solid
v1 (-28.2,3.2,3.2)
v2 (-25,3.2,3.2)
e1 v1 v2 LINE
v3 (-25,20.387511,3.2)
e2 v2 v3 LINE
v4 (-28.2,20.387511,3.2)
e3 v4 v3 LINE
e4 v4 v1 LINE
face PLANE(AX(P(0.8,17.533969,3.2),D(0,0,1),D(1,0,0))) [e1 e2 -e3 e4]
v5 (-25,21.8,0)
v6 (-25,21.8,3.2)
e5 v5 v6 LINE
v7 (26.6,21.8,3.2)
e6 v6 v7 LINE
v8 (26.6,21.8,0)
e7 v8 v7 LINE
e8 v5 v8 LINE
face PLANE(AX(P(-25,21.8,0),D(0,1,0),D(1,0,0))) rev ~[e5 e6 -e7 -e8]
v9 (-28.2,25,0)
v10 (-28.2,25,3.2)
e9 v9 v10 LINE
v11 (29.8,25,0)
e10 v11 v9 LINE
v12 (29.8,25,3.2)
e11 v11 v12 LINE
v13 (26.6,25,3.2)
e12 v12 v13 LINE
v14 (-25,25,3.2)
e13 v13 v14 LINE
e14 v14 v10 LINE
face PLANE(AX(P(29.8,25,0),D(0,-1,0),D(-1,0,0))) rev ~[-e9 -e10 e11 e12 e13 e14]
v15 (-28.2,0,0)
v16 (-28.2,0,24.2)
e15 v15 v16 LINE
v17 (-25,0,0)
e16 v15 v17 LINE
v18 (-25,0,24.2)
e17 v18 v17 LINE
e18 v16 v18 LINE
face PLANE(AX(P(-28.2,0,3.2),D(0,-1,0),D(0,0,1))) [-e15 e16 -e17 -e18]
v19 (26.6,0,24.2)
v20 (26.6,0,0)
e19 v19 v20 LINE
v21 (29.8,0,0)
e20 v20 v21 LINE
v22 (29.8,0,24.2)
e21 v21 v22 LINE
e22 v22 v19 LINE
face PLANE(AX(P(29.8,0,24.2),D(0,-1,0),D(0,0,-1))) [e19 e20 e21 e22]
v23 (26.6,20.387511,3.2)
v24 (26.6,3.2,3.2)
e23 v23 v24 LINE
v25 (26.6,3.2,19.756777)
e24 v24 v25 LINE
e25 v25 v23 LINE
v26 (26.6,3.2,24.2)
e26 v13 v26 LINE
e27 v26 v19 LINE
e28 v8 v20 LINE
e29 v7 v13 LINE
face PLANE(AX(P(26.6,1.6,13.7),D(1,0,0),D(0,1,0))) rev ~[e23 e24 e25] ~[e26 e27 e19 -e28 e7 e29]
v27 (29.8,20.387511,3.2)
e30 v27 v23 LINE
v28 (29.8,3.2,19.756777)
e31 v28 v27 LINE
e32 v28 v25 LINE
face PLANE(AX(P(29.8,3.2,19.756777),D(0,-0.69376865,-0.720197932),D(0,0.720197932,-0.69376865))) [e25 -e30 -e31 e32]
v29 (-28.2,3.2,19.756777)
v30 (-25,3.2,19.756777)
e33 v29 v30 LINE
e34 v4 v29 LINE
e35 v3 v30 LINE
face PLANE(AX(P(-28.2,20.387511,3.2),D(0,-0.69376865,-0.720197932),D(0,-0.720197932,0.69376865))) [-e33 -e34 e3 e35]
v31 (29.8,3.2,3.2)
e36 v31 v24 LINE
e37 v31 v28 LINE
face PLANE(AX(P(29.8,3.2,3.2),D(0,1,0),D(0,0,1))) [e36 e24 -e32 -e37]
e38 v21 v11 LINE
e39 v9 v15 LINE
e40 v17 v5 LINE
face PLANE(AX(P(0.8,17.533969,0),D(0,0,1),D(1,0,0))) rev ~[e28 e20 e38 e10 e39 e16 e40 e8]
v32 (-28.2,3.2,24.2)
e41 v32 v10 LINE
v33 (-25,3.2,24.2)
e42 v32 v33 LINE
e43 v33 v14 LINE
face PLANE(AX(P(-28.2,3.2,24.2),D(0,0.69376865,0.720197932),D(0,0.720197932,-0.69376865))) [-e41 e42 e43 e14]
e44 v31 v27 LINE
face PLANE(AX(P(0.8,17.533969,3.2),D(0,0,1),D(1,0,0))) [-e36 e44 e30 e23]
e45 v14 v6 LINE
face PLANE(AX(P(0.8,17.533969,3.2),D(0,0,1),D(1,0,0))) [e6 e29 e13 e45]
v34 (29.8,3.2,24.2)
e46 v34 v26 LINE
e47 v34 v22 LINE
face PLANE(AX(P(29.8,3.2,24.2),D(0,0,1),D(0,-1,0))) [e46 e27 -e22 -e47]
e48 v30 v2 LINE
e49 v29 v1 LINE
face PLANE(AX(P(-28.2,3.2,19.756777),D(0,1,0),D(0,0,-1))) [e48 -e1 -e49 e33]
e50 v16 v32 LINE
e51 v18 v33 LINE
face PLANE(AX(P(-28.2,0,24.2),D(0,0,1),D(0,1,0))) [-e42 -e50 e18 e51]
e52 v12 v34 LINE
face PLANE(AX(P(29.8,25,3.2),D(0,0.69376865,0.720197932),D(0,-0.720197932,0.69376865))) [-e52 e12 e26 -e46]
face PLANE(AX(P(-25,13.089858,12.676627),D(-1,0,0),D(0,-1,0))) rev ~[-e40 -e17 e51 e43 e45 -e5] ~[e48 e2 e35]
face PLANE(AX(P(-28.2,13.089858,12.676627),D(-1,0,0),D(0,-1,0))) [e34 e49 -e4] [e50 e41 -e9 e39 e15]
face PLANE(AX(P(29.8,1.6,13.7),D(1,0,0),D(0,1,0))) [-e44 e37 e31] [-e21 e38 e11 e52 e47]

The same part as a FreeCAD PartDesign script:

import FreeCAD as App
import Part
import Sketcher
from FreeCAD import Vector
Q = App.Units.Quantity

doc = App.newDocument("Part")
params = doc.addObject("Spreadsheet::Sheet", "Params")
for row, (alias, value) in enumerate([
    ("sketch1_width", "58 mm"),
    ("sketch1_height", "25 mm"),
    ("sketch1_width2", "3.2 mm"),
    ("sketch1_height2", "21.8 mm"),
    ("pad1_length", "3.2 mm"),
    ("sketch2_height", "21 mm"),
    ("sketch2_width", "3.2 mm"),
    ("pad2_length", "3.2 mm"),
    ("sketch3_height", "21 mm"),
    ("sketch3_width", "3.2 mm"),
    ("pad3_length", "3.2 mm"),
], start=1):
    params.set(f"A{row}", alias)
    params.set(f"B{row}", "=" + value)
    params.setAlias(f"B{row}", alias)

body = doc.addObject("PartDesign::Body", "Body")

# Sketch on XY plane
sketch1 = doc.addObject("Sketcher::SketchObject", "Sketch")
body.addObject(sketch1)
sketch1.AttachmentSupport = (doc.XY_Plane, [""])
sketch1.MapMode = "FlatFace"
sketch1.addGeometry(Part.LineSegment(Vector(29.8, 25, 0), Vector(-28.2, 25, 0)), False)
sketch1.addGeometry(Part.LineSegment(Vector(-28.2, 25, 0), Vector(-28.2, 0, 0)), False)
sketch1.addGeometry(Part.LineSegment(Vector(-28.2, 0, 0), Vector(-25, 0, 0)), False)
sketch1.addGeometry(Part.LineSegment(Vector(-25, 0, 0), Vector(-25, 21.8, 0)), False)
sketch1.addGeometry(Part.LineSegment(Vector(-25, 21.8, 0), Vector(26.6, 21.8, 0)), False)
sketch1.addGeometry(Part.LineSegment(Vector(26.6, 21.8, 0), Vector(26.6, 0, 0)), False)
sketch1.addGeometry(Part.LineSegment(Vector(26.6, 0, 0), Vector(29.8, 0, 0)), False)
sketch1.addGeometry(Part.LineSegment(Vector(29.8, 0, 0), Vector(29.8, 25, 0)), False)
sketch1.addConstraint(Sketcher.Constraint("Coincident", 0, 2, 1, 1))
sketch1.addConstraint(Sketcher.Constraint("Coincident", 1, 2, 2, 1))
sketch1.addConstraint(Sketcher.Constraint("Coincident", 2, 2, 3, 1))
sketch1.addConstraint(Sketcher.Constraint("Coincident", 3, 2, 4, 1))
sketch1.addConstraint(Sketcher.Constraint("Coincident", 4, 2, 5, 1))
sketch1.addConstraint(Sketcher.Constraint("Coincident", 5, 2, 6, 1))
sketch1.addConstraint(Sketcher.Constraint("Coincident", 6, 2, 7, 1))
sketch1.addConstraint(Sketcher.Constraint("Coincident", 7, 2, 0, 1))
sketch1.addConstraint(Sketcher.Constraint("Horizontal", 0))
sketch1.addConstraint(Sketcher.Constraint("Vertical", 1))
sketch1.addConstraint(Sketcher.Constraint("Horizontal", 2))
sketch1.addConstraint(Sketcher.Constraint("Vertical", 3))
sketch1.addConstraint(Sketcher.Constraint("Horizontal", 4))
sketch1.addConstraint(Sketcher.Constraint("Vertical", 5))
sketch1.addConstraint(Sketcher.Constraint("Horizontal", 6))
sketch1.addConstraint(Sketcher.Constraint("Vertical", 7))
sketch1.addConstraint(Sketcher.Constraint("PointOnObject", 1, 2, -1))
sketch1.addConstraint(Sketcher.Constraint("PointOnObject", 5, 2, -1))
sketch1.addConstraint(Sketcher.Constraint("Equal", 2, 6))
sketch1.addConstraint(Sketcher.Constraint("DistanceX", 0, 2, 0, 1, Q("58 mm")))
sketch1.addConstraint(Sketcher.Constraint("DistanceY", 1, 2, 1, 1, Q("25 mm")))
sketch1.addConstraint(Sketcher.Constraint("DistanceX", 2, 1, 2, 2, Q("3.2 mm")))
sketch1.addConstraint(Sketcher.Constraint("DistanceY", 3, 1, 3, 2, Q("21.8 mm")))
sketch1.addConstraint(Sketcher.Constraint("DistanceX", 2, 2, -1, 1, Q("25 mm")))
sketch1.setExpression("Constraints[19]", "Params.sketch1_width")
sketch1.setExpression("Constraints[20]", "Params.sketch1_height")
sketch1.setExpression("Constraints[21]", "Params.sketch1_width2")
sketch1.setExpression("Constraints[22]", "Params.sketch1_height2")
pad1 = doc.addObject("PartDesign::Pad", "Pad")
body.addObject(pad1)
pad1.Profile = sketch1
pad1.setExpression("Length", "Params.pad1_length")

# Sketch on YZ plane
sketch2 = doc.addObject("Sketcher::SketchObject", "Sketch001")
body.addObject(sketch2)
sketch2.AttachmentSupport = (doc.YZ_Plane, [""])
sketch2.MapMode = "FlatFace"
sketch2.AttachmentOffset = App.Placement(Vector(0, 0, 29.8), App.Rotation())
sketch2.addGeometry(Part.LineSegment(Vector(0, 24.2, 0), Vector(0, 3.2, 0)), False)
sketch2.addGeometry(Part.LineSegment(Vector(0, 3.2, 0), Vector(3.2, 3.2, 0)), False)
sketch2.addGeometry(Part.LineSegment(Vector(3.2, 3.2, 0), Vector(3.2, 19.8, 0)), False)
sketch2.addGeometry(Part.LineSegment(Vector(3.2, 19.8, 0), Vector(20.4, 3.2, 0)), False)
sketch2.addGeometry(Part.LineSegment(Vector(20.4, 3.2, 0), Vector(25, 3.2, 0)), False)
sketch2.addGeometry(Part.LineSegment(Vector(25, 3.2, 0), Vector(3.2, 24.2, 0)), False)
sketch2.addGeometry(Part.LineSegment(Vector(3.2, 24.2, 0), Vector(0, 24.2, 0)), False)
sketch2.addConstraint(Sketcher.Constraint("Coincident", 0, 2, 1, 1))
sketch2.addConstraint(Sketcher.Constraint("Coincident", 1, 2, 2, 1))
sketch2.addConstraint(Sketcher.Constraint("Coincident", 2, 2, 3, 1))
sketch2.addConstraint(Sketcher.Constraint("Coincident", 3, 2, 4, 1))
sketch2.addConstraint(Sketcher.Constraint("Coincident", 4, 2, 5, 1))
sketch2.addConstraint(Sketcher.Constraint("Coincident", 5, 2, 6, 1))
sketch2.addConstraint(Sketcher.Constraint("Coincident", 6, 2, 0, 1))
sketch2.addConstraint(Sketcher.Constraint("Vertical", 0))
sketch2.addConstraint(Sketcher.Constraint("Horizontal", 1))
sketch2.addConstraint(Sketcher.Constraint("Vertical", 2))
sketch2.addConstraint(Sketcher.Constraint("Horizontal", 4))
sketch2.addConstraint(Sketcher.Constraint("Horizontal", 6))
sketch2.addConstraint(Sketcher.Constraint("PointOnObject", 0, 2, -2))
sketch2.addConstraint(Sketcher.Constraint("Parallel", 3, 5))
sketch2.addConstraint(Sketcher.Constraint("Horizontal", 1, 2, 3, 2))
sketch2.addConstraint(Sketcher.Constraint("Vertical", 2, 2, 5, 2))
sketch2.addConstraint(Sketcher.Constraint("DistanceY", 0, 2, 0, 1, Q("21 mm")))
sketch2.addConstraint(Sketcher.Constraint("DistanceX", 1, 1, 1, 2, Q("3.2 mm")))
sketch2.addConstraint(Sketcher.Constraint("DistanceX", -1, 1, 4, 2, Q("25 mm")))
sketch2.addConstraint(Sketcher.Constraint("DistanceY", -1, 1, 0, 2, Q("3.2 mm")))
sketch2.addConstraint(Sketcher.Constraint("DistanceX", 4, 1, 4, 2, Q("4.612489 mm")))
sketch2.setExpression("Constraints[16]", "Params.sketch2_height")
sketch2.setExpression("Constraints[17]", "Params.sketch2_width")
pad2 = doc.addObject("PartDesign::Pad", "Pad001")
body.addObject(pad2)
pad2.Profile = sketch2
pad2.setExpression("Length", "Params.pad2_length")
pad2.Reversed = True

# Sketch on YZ plane
sketch3 = doc.addObject("Sketcher::SketchObject", "Sketch002")
body.addObject(sketch3)
sketch3.AttachmentSupport = (doc.YZ_Plane, [""])
sketch3.MapMode = "FlatFace"
sketch3.AttachmentOffset = App.Placement(Vector(0, 0, -28.2), App.Rotation())
sketch3.addGeometry(Part.LineSegment(Vector(20.4, 3.2, 0), Vector(3.2, 19.8, 0)), False)
sketch3.addGeometry(Part.LineSegment(Vector(3.2, 19.8, 0), Vector(3.2, 3.2, 0)), False)
sketch3.addGeometry(Part.LineSegment(Vector(3.2, 3.2, 0), Vector(0, 3.2, 0)), False)
sketch3.addGeometry(Part.LineSegment(Vector(0, 3.2, 0), Vector(0, 24.2, 0)), False)
sketch3.addGeometry(Part.LineSegment(Vector(0, 24.2, 0), Vector(3.2, 24.2, 0)), False)
sketch3.addGeometry(Part.LineSegment(Vector(3.2, 24.2, 0), Vector(25, 3.2, 0)), False)
sketch3.addGeometry(Part.LineSegment(Vector(25, 3.2, 0), Vector(20.4, 3.2, 0)), False)
sketch3.addConstraint(Sketcher.Constraint("Coincident", 0, 2, 1, 1))
sketch3.addConstraint(Sketcher.Constraint("Coincident", 1, 2, 2, 1))
sketch3.addConstraint(Sketcher.Constraint("Coincident", 2, 2, 3, 1))
sketch3.addConstraint(Sketcher.Constraint("Coincident", 3, 2, 4, 1))
sketch3.addConstraint(Sketcher.Constraint("Coincident", 4, 2, 5, 1))
sketch3.addConstraint(Sketcher.Constraint("Coincident", 5, 2, 6, 1))
sketch3.addConstraint(Sketcher.Constraint("Coincident", 6, 2, 0, 1))
sketch3.addConstraint(Sketcher.Constraint("Vertical", 1))
sketch3.addConstraint(Sketcher.Constraint("Horizontal", 2))
sketch3.addConstraint(Sketcher.Constraint("Vertical", 3))
sketch3.addConstraint(Sketcher.Constraint("Horizontal", 4))
sketch3.addConstraint(Sketcher.Constraint("Horizontal", 6))
sketch3.addConstraint(Sketcher.Constraint("PointOnObject", 2, 2, -2))
sketch3.addConstraint(Sketcher.Constraint("Parallel", 0, 5))
sketch3.addConstraint(Sketcher.Constraint("Horizontal", 2, 2, 5, 2))
sketch3.addConstraint(Sketcher.Constraint("Vertical", 1, 2, 4, 2))
sketch3.addConstraint(Sketcher.Constraint("DistanceY", 3, 1, 3, 2, Q("21 mm")))
sketch3.addConstraint(Sketcher.Constraint("DistanceX", 2, 2, 2, 1, Q("3.2 mm")))
sketch3.addConstraint(Sketcher.Constraint("DistanceX", -1, 1, 5, 2, Q("25 mm")))
sketch3.addConstraint(Sketcher.Constraint("DistanceY", -1, 1, 1, 2, Q("3.2 mm")))
sketch3.addConstraint(Sketcher.Constraint("DistanceX", 6, 2, 6, 1, Q("4.612489 mm")))
sketch3.setExpression("Constraints[16]", "Params.sketch3_height")
sketch3.setExpression("Constraints[17]", "Params.sketch3_width")
pad3 = doc.addObject("PartDesign::Pad", "Pad002")
body.addObject(pad3)
pad3.Profile = sketch3
pad3.setExpression("Length", "Params.pad3_length")

doc.recompute()
